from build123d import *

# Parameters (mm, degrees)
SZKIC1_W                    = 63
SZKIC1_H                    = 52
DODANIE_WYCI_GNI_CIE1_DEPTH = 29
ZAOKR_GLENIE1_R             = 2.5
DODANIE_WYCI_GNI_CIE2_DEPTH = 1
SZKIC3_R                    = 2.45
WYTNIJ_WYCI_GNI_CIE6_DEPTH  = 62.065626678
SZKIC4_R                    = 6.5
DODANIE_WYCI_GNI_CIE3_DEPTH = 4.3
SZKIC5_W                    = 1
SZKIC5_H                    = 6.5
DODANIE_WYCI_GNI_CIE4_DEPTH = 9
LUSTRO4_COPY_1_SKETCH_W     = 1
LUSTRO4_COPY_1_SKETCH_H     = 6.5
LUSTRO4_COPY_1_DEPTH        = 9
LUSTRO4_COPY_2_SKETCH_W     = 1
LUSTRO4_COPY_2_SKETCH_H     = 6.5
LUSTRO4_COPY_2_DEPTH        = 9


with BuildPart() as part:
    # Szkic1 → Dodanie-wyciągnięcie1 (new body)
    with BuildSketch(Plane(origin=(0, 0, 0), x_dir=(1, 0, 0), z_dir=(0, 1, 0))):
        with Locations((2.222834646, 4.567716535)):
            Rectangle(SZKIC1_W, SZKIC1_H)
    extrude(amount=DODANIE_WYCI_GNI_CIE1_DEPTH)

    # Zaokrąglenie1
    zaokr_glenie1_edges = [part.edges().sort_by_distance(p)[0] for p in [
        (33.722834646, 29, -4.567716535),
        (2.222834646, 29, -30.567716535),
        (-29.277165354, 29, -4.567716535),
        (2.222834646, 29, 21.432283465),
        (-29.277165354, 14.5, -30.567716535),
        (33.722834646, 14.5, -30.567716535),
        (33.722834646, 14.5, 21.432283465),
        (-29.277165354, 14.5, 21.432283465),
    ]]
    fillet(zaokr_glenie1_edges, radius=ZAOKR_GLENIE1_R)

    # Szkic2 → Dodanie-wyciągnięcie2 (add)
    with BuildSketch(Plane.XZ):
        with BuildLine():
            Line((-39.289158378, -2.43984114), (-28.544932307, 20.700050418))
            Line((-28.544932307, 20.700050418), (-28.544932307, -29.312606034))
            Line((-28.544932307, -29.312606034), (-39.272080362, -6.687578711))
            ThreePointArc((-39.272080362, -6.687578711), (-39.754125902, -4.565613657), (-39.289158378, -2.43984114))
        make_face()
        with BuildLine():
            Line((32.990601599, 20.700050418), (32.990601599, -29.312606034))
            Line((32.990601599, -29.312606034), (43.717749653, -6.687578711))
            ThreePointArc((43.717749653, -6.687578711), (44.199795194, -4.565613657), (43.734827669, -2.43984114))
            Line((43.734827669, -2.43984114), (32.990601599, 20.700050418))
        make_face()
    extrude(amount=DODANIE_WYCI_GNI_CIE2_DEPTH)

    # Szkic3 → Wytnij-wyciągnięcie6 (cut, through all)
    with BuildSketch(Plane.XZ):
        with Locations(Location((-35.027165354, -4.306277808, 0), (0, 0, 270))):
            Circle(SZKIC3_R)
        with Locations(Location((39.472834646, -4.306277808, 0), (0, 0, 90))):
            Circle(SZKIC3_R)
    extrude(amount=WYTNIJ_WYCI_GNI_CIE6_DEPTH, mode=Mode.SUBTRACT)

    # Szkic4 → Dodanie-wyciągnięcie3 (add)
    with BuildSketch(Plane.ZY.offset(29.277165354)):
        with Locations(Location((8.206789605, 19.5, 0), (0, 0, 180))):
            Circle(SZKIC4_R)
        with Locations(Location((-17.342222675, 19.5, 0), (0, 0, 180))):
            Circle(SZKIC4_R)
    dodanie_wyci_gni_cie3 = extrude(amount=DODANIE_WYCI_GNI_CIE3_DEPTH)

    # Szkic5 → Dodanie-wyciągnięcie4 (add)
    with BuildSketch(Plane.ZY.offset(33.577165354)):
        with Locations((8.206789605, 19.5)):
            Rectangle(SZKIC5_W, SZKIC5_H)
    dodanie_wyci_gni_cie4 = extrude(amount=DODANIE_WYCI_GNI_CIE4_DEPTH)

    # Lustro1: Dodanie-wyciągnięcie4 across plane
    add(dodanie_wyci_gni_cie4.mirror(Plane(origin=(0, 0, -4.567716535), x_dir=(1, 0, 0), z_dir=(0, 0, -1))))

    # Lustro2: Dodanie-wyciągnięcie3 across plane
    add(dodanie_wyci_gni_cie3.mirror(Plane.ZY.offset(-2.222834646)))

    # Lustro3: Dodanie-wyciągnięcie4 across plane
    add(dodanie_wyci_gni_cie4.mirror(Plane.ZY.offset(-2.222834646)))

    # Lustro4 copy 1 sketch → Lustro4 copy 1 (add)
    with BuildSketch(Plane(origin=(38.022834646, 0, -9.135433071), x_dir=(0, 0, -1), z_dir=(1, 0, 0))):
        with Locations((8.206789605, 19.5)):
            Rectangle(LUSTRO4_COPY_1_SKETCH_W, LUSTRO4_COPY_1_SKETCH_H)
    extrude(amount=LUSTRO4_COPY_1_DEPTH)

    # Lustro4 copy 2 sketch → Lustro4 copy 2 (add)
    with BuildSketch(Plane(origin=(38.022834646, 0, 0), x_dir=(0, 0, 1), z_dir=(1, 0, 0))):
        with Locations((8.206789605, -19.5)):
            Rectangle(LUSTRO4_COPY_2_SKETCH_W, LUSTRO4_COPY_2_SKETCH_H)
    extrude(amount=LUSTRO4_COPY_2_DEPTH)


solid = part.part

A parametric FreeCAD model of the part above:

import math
import FreeCAD as App
import Part
import Sketcher
from FreeCAD import Vector
Q = App.Units.Quantity


def edges_at(feature, points):
    """Names of the edges that pass closest to the given points."""
    edges = feature.Shape.Edges
    near = lambda p: min(range(len(edges)), key=lambda i: edges[i].distToShape(Part.Vertex(*p))[0])
    return sorted({f"Edge{near(p) + 1}" for p in points})

doc = App.newDocument("Part")
body = doc.addObject("PartDesign::Body", "Body")

# Sketch on XZ plane
sketch1 = body.newObject("Sketcher::SketchObject", "Sketch")
sketch1.AttachmentSupport = (doc.getObject("XZ_Plane"), [""])
sketch1.MapMode = "FlatFace"
sketch1.addGeometry([
    Part.LineSegment(Vector(-29, -31, 0), Vector(-29, 21, 0)),
    Part.LineSegment(Vector(-29, 21, 0), Vector(34, 21, 0)),
    Part.LineSegment(Vector(34, 21, 0), Vector(34, -31, 0)),
    Part.LineSegment(Vector(34, -31, 0), Vector(-29, -31, 0)),
], False)
sketch1.addConstraint([
    Sketcher.Constraint("Coincident", 0, 2, 1, 1),
    Sketcher.Constraint("Coincident", 1, 2, 2, 1),
    Sketcher.Constraint("Coincident", 2, 2, 3, 1),
    Sketcher.Constraint("Coincident", 3, 2, 0, 1),
    Sketcher.Constraint("Vertical", 0),
    Sketcher.Constraint("Horizontal", 1),
    Sketcher.Constraint("Vertical", 2),
    Sketcher.Constraint("Horizontal", 3),
    Sketcher.Constraint("DistanceX", 1, 1, 1, 2, Q("63 mm")),
    Sketcher.Constraint("DistanceY", 0, 1, 0, 2, Q("52 mm")),
    Sketcher.Constraint("DistanceX", 0, 2, -1, 1, Q("29.277165 mm")),
    Sketcher.Constraint("DistanceY", -1, 1, 0, 2, Q("21.432283 mm")),
])
pad1 = body.newObject("PartDesign::Pad", "Pad")
pad1.Profile = sketch1
pad1.Length = 29
pad1.Reversed = True
doc.recompute()

fillet = body.newObject("PartDesign::Fillet", "Fillet")
fillet.Base = (pad1, edges_at(pad1, [
    (33.723, 29, -4.568),
    (2.223, 29, -30.568),
    (-29.277, 29, -4.568),
    (2.223, 29, 21.432),
    (-29.277, 14.5, -30.568),
    (33.723, 14.5, -30.568),
    (33.723, 14.5, 21.432),
    (-29.277, 14.5, 21.432),
]))
fillet.Radius = 2.5

# Sketch on XZ plane
sketch2 = body.newObject("Sketcher::SketchObject", "Sketch001")
sketch2.AttachmentSupport = (doc.getObject("XZ_Plane"), [""])
sketch2.MapMode = "FlatFace"
sketch2.addGeometry([
    Part.LineSegment(Vector(-28.5, 20.7, 0), Vector(-39.3, -2.4, 0)),  # 0
    Part.ArcOfCircle(Part.Circle(Vector(-34.8, -4.5, 0), Vector(0, 0, 1), 5), math.radians(155), math.radians(205)),  # 1
    Part.LineSegment(Vector(-39.3, -6.7, 0), Vector(-28.5, -29.3, 0)),  # 2
    Part.LineSegment(Vector(-28.5, -29.3, 0), Vector(-28.5, 20.7, 0)),  # 3
    Part.LineSegment(Vector(33, 20.7, 0), Vector(33, -29.3, 0)),  # 4
    Part.LineSegment(Vector(33, -29.3, 0), Vector(43.7, -6.7, 0)),  # 5
    Part.ArcOfCircle(Part.Circle(Vector(39.2, -4.5, 0), Vector(0, 0, 1), 5), math.radians(-25), math.radians(25)),  # 6
    Part.LineSegment(Vector(43.7, -2.4, 0), Vector(33, 20.7, 0)),  # 7
], False)
sketch2.addConstraint([
    Sketcher.Constraint("Tangent", 0, 2, 1, 1),
    Sketcher.Constraint("Tangent", 1, 2, 2, 1),
    Sketcher.Constraint("Coincident", 2, 2, 3, 1),
    Sketcher.Constraint("Coincident", 3, 2, 0, 1),
    Sketcher.Constraint("Coincident", 4, 2, 5, 1),
    Sketcher.Constraint("Tangent", 5, 2, 6, 1),
    Sketcher.Constraint("Tangent", 6, 2, 7, 1),
    Sketcher.Constraint("Coincident", 7, 2, 4, 1),
    Sketcher.Constraint("Vertical", 3),
    Sketcher.Constraint("Vertical", 4),
    Sketcher.Constraint("Equal", 1, 6),
    Sketcher.Constraint("Horizontal", 1, 3, 6, 3),
    Sketcher.Constraint("Horizontal", 2, 2, 4, 2),
    Sketcher.Constraint("Horizontal", 1, 2, 5, 2),
    Sketcher.Constraint("Horizontal", 0, 2, 6, 2),
    Sketcher.Constraint("Radius", 1, Q("5 mm")),
    Sketcher.Constraint("DistanceX", 1, 3, 6, 3, Q("73.954002 mm")),
    Sketcher.Constraint("DistanceX", -1, 1, 4, 2, Q("32.990602 mm")),
    Sketcher.Constraint("Distance", 2, Q("25.039241 mm")),
    Sketcher.Constraint("DistanceY", 3, 1, 3, 2, Q("50.012656 mm")),
    Sketcher.Constraint("DistanceY", 1, 3, -1, 1, Q("4.545511 mm")),
    Sketcher.Constraint("DistanceX", 0, 2, -1, 1, Q("39.289158 mm")),
])
pad2 = body.newObject("PartDesign::Pad", "Pad001")
pad2.Profile = sketch2
pad2.Length = 1

# Sketch on XZ plane
sketch3 = body.newObject("Sketcher::SketchObject", "Sketch002")
sketch3.AttachmentSupport = (doc.getObject("XZ_Plane"), [""])
sketch3.MapMode = "FlatFace"
sketch3.addGeometry([
    Part.Circle(Vector(-35, -4.3, 0), Vector(0, 0, 1), 2.5),
    Part.Circle(Vector(39.5, -4.3, 0), Vector(0, 0, 1), 2.5),
], False)
sketch3.addConstraint([
    Sketcher.Constraint("Equal", 0, 1),
    Sketcher.Constraint("Horizontal", 0, 3, 1, 3),
    Sketcher.Constraint("Diameter", 0, Q("4.9 mm")),
    Sketcher.Constraint("DistanceX", 0, 3, 1, 3, Q("74.5 mm")),
    Sketcher.Constraint("DistanceX", 0, 3, -1, 1, Q("35.027165 mm")),
    Sketcher.Constraint("DistanceY", 0, 3, -1, 1, Q("4.306278 mm")),
])
pocket1 = body.newObject("PartDesign::Pocket", "Pocket")
pocket1.Profile = sketch3
pocket1.Type = "ThroughAll"
pocket1.Reversed = True

# Sketch on YZ plane
sketch4 = body.newObject("Sketcher::SketchObject", "Sketch003")
sketch4.AttachmentSupport = (doc.getObject("YZ_Plane"), [""])
sketch4.MapMode = "FlatFace"
sketch4.AttachmentOffset = App.Placement(Vector(0, 0, -29.277165), App.Rotation())
sketch4.addGeometry([
    Part.Circle(Vector(20, 8, 0), Vector(0, 0, 1), 6),
    Part.Circle(Vector(20, -17, 0), Vector(0, 0, 1), 6),
], False)
sketch4.addConstraint([
    Sketcher.Constraint("Equal", 0, 1),
    Sketcher.Constraint("Vertical", 0, 3, 1, 3),
    Sketcher.Constraint("Diameter", 0, Q("13 mm")),
    Sketcher.Constraint("DistanceX", -1, 1, 0, 3, Q("19.5 mm")),
    Sketcher.Constraint("DistanceY", -1, 1, 0, 3, Q("8.20679 mm")),
    Sketcher.Constraint("DistanceY", 1, 3, -1, 1, Q("17.342223 mm")),
])
pad3 = body.newObject("PartDesign::Pad", "Pad002")
pad3.Profile = sketch4
pad3.Length = 4.3
pad3.Reversed = True

# Sketch on YZ plane
sketch5 = body.newObject("Sketcher::SketchObject", "Sketch004")
sketch5.AttachmentSupport = (doc.getObject("YZ_Plane"), [""])
sketch5.MapMode = "FlatFace"
sketch5.AttachmentOffset = App.Placement(Vector(0, 0, -33.577165), App.Rotation())
sketch5.addGeometry([
    Part.LineSegment(Vector(22.8, 7.7, 0), Vector(16.2, 7.7, 0)),
    Part.LineSegment(Vector(16.2, 7.7, 0), Vector(16.2, 8.7, 0)),
    Part.LineSegment(Vector(16.2, 8.7, 0), Vector(22.8, 8.7, 0)),
    Part.LineSegment(Vector(22.8, 8.7, 0), Vector(22.8, 7.7, 0)),
], False)
sketch5.addConstraint([
    Sketcher.Constraint("Coincident", 0, 2, 1, 1),
    Sketcher.Constraint("Coincident", 1, 2, 2, 1),
    Sketcher.Constraint("Coincident", 2, 2, 3, 1),
    Sketcher.Constraint("Coincident", 3, 2, 0, 1),
    Sketcher.Constraint("Horizontal", 0),
    Sketcher.Constraint("Vertical", 1),
    Sketcher.Constraint("Horizontal", 2),
    Sketcher.Constraint("Vertical", 3),
    Sketcher.Constraint("DistanceY", 1, 1, 1, 2, Q("1 mm")),
    Sketcher.Constraint("DistanceX", 0, 2, 0, 1, Q("6.5 mm")),
    Sketcher.Constraint("DistanceX", -1, 1, 0, 2, Q("16.25 mm")),
    Sketcher.Constraint("DistanceY", -1, 1, 0, 2, Q("7.70679 mm")),
])
pad4 = body.newObject("PartDesign::Pad", "Pad003")
pad4.Profile = sketch5
pad4.Length = 9
pad4.Reversed = True
doc.recompute()

datumplane = body.newObject("PartDesign::Plane", "DatumPlane")
datumplane.AttachmentSupport = (doc.getObject("XY_Plane"), [""])
datumplane.MapMode = "FlatFace"
datumplane.AttachmentOffset = App.Placement(Vector(0, 0, -4.567717), App.Rotation())
mirrored = body.newObject("PartDesign::Mirrored", "Mirrored")
mirrored.Originals = [pad4]
mirrored.MirrorPlane = (datumplane, [""])
body.Tip = mirrored
doc.recompute()

datumplane2 = body.newObject("PartDesign::Plane", "DatumPlane001")
datumplane2.AttachmentSupport = (doc.getObject("YZ_Plane"), [""])
datumplane2.MapMode = "FlatFace"
datumplane2.AttachmentOffset = App.Placement(Vector(0, 0, 2.222835), App.Rotation())
mirrored2 = body.newObject("PartDesign::Mirrored", "Mirrored001")
mirrored2.Originals = [pad3]
mirrored2.MirrorPlane = (datumplane2, [""])
body.Tip = mirrored2
doc.recompute()

datumplane3 = body.newObject("PartDesign::Plane", "DatumPlane002")
datumplane3.AttachmentSupport = (doc.getObject("YZ_Plane"), [""])
datumplane3.MapMode = "FlatFace"
datumplane3.AttachmentOffset = App.Placement(Vector(0, 0, 2.222835), App.Rotation())
mirrored3 = body.newObject("PartDesign::Mirrored", "Mirrored002")
mirrored3.Originals = [pad4]
mirrored3.MirrorPlane = (datumplane3, [""])
body.Tip = mirrored3

# Sketch on YZ plane
sketch6 = body.newObject("Sketcher::SketchObject", "Sketch005")
sketch6.AttachmentSupport = (doc.getObject("YZ_Plane"), [""])
sketch6.MapMode = "FlatFace"
sketch6.AttachmentOffset = App.Placement(Vector(0, 0, 38.022835), App.Rotation())
sketch6.addGeometry([
    Part.LineSegment(Vector(22.8, -16.8, 0), Vector(16.2, -16.8, 0)),
    Part.LineSegment(Vector(16.2, -16.8, 0), Vector(16.2, -17.8, 0)),
    Part.LineSegment(Vector(16.2, -17.8, 0), Vector(22.8, -17.8, 0)),
    Part.LineSegment(Vector(22.8, -17.8, 0), Vector(22.8, -16.8, 0)),
], False)
sketch6.addConstraint([
    Sketcher.Constraint("Coincident", 0, 2, 1, 1),
    Sketcher.Constraint("Coincident", 1, 2, 2, 1),
    Sketcher.Constraint("Coincident", 2, 2, 3, 1),
    Sketcher.Constraint("Coincident", 3, 2, 0, 1),
    Sketcher.Constraint("Horizontal", 0),
    Sketcher.Constraint("Vertical", 1),
    Sketcher.Constraint("Horizontal", 2),
    Sketcher.Constraint("Vertical", 3),
    Sketcher.Constraint("DistanceY", 1, 2, 1, 1, Q("1 mm")),
    Sketcher.Constraint("DistanceX", 0, 2, 0, 1, Q("6.5 mm")),
    Sketcher.Constraint("DistanceX", -1, 1, 0, 2, Q("16.25 mm")),
    Sketcher.Constraint("DistanceY", 0, 2, -1, 1, Q("16.842223 mm")),
])
pad5 = body.newObject("PartDesign::Pad", "Pad004")
pad5.Profile = sketch6
pad5.Length = 9

# Sketch on YZ plane
sketch7 = body.newObject("Sketcher::SketchObject", "Sketch006")
sketch7.AttachmentSupport = (doc.getObject("YZ_Plane"), [""])
sketch7.MapMode = "FlatFace"
sketch7.AttachmentOffset = App.Placement(Vector(0, 0, 38.022835), App.Rotation())
sketch7.addGeometry([
    Part.LineSegment(Vector(16.2, 7.7, 0), Vector(22.8, 7.7, 0)),
    Part.LineSegment(Vector(22.8, 7.7, 0), Vector(22.8, 8.7, 0)),
    Part.LineSegment(Vector(22.8, 8.7, 0), Vector(16.2, 8.7, 0)),
    Part.LineSegment(Vector(16.2, 8.7, 0), Vector(16.2, 7.7, 0)),
], False)
sketch7.addConstraint([
    Sketcher.Constraint("Coincident", 0, 2, 1, 1),
    Sketcher.Constraint("Coincident", 1, 2, 2, 1),
    Sketcher.Constraint("Coincident", 2, 2, 3, 1),
    Sketcher.Constraint("Coincident", 3, 2, 0, 1),
    Sketcher.Constraint("Horizontal", 0),
    Sketcher.Constraint("Vertical", 1),
    Sketcher.Constraint("Horizontal", 2),
    Sketcher.Constraint("Vertical", 3),
    Sketcher.Constraint("DistanceY", 1, 1, 1, 2, Q("1 mm")),
    Sketcher.Constraint("DistanceX", 0, 1, 0, 2, Q("6.5 mm")),
    Sketcher.Constraint("DistanceX", -1, 1, 0, 2, Q("22.75 mm")),
    Sketcher.Constraint("DistanceY", -1, 1, 0, 2, Q("7.70679 mm")),
])
pad6 = body.newObject("PartDesign::Pad", "Pad005")
pad6.Profile = sketch7
pad6.Length = 9

doc.recompute()
